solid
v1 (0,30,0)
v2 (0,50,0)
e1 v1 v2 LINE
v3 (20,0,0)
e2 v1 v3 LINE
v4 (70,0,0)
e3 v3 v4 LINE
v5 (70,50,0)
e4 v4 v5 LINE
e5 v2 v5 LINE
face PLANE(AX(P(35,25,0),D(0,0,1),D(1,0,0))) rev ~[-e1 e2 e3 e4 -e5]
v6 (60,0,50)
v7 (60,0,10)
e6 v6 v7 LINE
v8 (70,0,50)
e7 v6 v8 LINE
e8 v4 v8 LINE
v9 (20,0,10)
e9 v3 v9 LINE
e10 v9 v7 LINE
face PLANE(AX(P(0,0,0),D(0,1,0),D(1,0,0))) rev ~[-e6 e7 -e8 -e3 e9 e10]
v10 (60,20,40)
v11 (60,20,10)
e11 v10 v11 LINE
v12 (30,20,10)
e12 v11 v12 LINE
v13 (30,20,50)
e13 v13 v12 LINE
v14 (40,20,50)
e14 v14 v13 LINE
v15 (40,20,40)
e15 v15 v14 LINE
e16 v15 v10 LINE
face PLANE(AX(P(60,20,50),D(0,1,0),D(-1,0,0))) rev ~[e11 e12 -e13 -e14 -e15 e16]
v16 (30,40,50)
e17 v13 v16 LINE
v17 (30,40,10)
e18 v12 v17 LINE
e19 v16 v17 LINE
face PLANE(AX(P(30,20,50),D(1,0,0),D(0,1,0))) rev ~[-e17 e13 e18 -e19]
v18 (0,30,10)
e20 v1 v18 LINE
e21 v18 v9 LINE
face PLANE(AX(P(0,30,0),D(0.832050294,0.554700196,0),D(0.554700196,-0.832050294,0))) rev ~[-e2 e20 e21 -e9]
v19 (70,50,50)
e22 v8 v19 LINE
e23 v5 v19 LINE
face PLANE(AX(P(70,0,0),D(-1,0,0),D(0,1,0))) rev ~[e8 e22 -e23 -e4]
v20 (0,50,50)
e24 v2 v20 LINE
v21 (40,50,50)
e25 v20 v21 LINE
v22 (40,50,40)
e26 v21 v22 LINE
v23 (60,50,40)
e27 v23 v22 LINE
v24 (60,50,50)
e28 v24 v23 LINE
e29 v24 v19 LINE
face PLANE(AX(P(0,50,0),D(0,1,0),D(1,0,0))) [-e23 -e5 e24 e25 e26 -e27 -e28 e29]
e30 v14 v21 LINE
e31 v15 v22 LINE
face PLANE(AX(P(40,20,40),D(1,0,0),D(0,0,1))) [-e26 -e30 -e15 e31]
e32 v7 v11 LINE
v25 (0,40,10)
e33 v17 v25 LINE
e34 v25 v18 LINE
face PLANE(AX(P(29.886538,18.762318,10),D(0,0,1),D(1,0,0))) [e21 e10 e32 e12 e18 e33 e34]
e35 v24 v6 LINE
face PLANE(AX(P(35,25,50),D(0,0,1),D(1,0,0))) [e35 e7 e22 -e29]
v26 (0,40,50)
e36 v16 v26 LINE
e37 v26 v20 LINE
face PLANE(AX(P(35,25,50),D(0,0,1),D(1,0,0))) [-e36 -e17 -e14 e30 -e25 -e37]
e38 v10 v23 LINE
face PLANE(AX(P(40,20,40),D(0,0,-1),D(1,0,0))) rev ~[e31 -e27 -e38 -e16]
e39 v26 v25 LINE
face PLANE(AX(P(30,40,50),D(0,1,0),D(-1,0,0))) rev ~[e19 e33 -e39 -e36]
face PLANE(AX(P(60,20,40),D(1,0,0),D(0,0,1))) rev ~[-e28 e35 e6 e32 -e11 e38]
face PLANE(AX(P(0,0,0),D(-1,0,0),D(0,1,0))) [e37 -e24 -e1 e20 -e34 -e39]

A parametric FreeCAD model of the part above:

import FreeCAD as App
import Part
import Sketcher

V = App.Vector
Q = App.Units.Quantity

doc = App.newDocument("Part")
body = doc.addObject("PartDesign::Body", "Body")

sketch1 = body.newObject("Sketcher::SketchObject", "Sketch")
sketch1.AttachmentSupport = (doc.getObject("XY_Plane"), [""])
sketch1.MapMode = "FlatFace"
sketch1.addGeometry([
    Part.LineSegment(V(0, 50, 0), V(0, 0, 0)),
    Part.LineSegment(V(0, 0, 0), V(70, 0, 0)),
    Part.LineSegment(V(70, 0, 0), V(70, 50, 0)),
    Part.LineSegment(V(70, 50, 0), V(0, 50, 0)),
], False)
sketch1.addConstraint([
    Sketcher.Constraint("Coincident", 0, 2, 1, 1),
    Sketcher.Constraint("Coincident", 1, 2, 2, 1),
    Sketcher.Constraint("Coincident", 2, 2, 3, 1),
    Sketcher.Constraint("Coincident", 3, 2, 0, 1),
    Sketcher.Constraint("Vertical", 0),
    Sketcher.Constraint("Horizontal", 1),
    Sketcher.Constraint("Vertical", 2),
    Sketcher.Constraint("Horizontal", 3),
    Sketcher.Constraint("Coincident", 0, 2, -1, 1),
    Sketcher.Constraint("DistanceX", 1, 1, 1, 2, Q("70 mm")),
    Sketcher.Constraint("DistanceY", 0, 2, 0, 1, Q("50 mm")),
])
pad1 = body.newObject("PartDesign::Pad", "Pad")
pad1.Profile = sketch1
pad1.Length = 50

sketch2 = body.newObject("Sketcher::SketchObject", "Sketch001")
sketch2.AttachmentSupport = (doc.getObject("XY_Plane"), [""])
sketch2.MapMode = "FlatFace"
sketch2.addGeometry([
    Part.LineSegment(V(20, 0, 0), V(0, 30, 0)),
    Part.LineSegment(V(0, 30, 0), V(0, 0, 0)),
    Part.LineSegment(V(0, 0, 0), V(20, 0, 0)),
], False)
sketch2.addConstraint([
    Sketcher.Constraint("Coincident", 0, 2, 1, 1),
    Sketcher.Constraint("Coincident", 1, 2, 2, 1),
    Sketcher.Constraint("Coincident", 2, 2, 0, 1),
    Sketcher.Constraint("Vertical", 1),
    Sketcher.Constraint("Horizontal", 2),
    Sketcher.Constraint("Coincident", 1, 2, -1, 1),
    Sketcher.Constraint("DistanceX", 2, 1, 2, 2, Q("20 mm")),
    Sketcher.Constraint("DistanceY", 1, 2, 1, 1, Q("30 mm")),
])
pocket1 = body.newObject("PartDesign::Pocket", "Pocket")
pocket1.Profile = sketch2
pocket1.Length = 50
pocket1.Reversed = True

sketch3 = body.newObject("Sketcher::SketchObject", "Sketch002")
sketch3.AttachmentSupport = (doc.getObject("XY_Plane"), [""])
sketch3.MapMode = "FlatFace"
sketch3.AttachmentOffset = App.Placement(V(0, 0, 50), App.Rotation())
sketch3.addGeometry([
    Part.LineSegment(V(60, 0, 0), V(60, 20, 0)),
    Part.LineSegment(V(60, 20, 0), V(30, 20, 0)),
    Part.LineSegment(V(30, 20, 0), V(30, 40, 0)),
    Part.LineSegment(V(30, 40, 0), V(0, 40, 0)),
    Part.LineSegment(V(0, 40, 0), V(0, 30, 0)),
    Part.LineSegment(V(0, 30, 0), V(20, 0, 0)),
    Part.LineSegment(V(20, 0, 0), V(60, 0, 0)),
], False)
sketch3.addConstraint([
    Sketcher.Constraint("Coincident", 0, 2, 1, 1),
    Sketcher.Constraint("Coincident", 1, 2, 2, 1),
    Sketcher.Constraint("Coincident", 2, 2, 3, 1),
    Sketcher.Constraint("Coincident", 3, 2, 4, 1),
    Sketcher.Constraint("Coincident", 4, 2, 5, 1),
    Sketcher.Constraint("Coincident", 5, 2, 6, 1),
    Sketcher.Constraint("Coincident", 6, 2, 0, 1),
    Sketcher.Constraint("Vertical", 0),
    Sketcher.Constraint("Horizontal", 1),
    Sketcher.Constraint("Vertical", 2),
    Sketcher.Constraint("Horizontal", 3),
    Sketcher.Constraint("Vertical", 4),
    Sketcher.Constraint("Horizontal", 6),
    Sketcher.Constraint("PointOnObject", 3, 2, -2),
    Sketcher.Constraint("PointOnObject", 5, 2, -1),
    Sketcher.Constraint("Equal", 1, 3),
    Sketcher.Constraint("Equal", 0, 2),
    Sketcher.Constraint("DistanceX", 1, 2, 1, 1, Q("30 mm")),
    Sketcher.Constraint("DistanceX", 6, 1, 6, 2, Q("40 mm")),
    Sketcher.Constraint("DistanceY", 0, 1, 0, 2, Q("20 mm")),
    Sketcher.Constraint("DistanceY", 4, 2, 4, 1, Q("10 mm")),
])
pocket2 = body.newObject("PartDesign::Pocket", "Pocket001")
pocket2.Profile = sketch3
pocket2.Length = 40

sketch4 = body.newObject("Sketcher::SketchObject", "Sketch003")
sketch4.AttachmentSupport = (doc.getObject("XZ_Plane"), [""])
sketch4.MapMode = "FlatFace"
sketch4.AttachmentOffset = App.Placement(V(0, 0, -20), App.Rotation())
sketch4.addGeometry([
    Part.LineSegment(V(40, 50, 0), V(40, 40, 0)),
    Part.LineSegment(V(40, 40, 0), V(60, 40, 0)),
    Part.LineSegment(V(60, 40, 0), V(60, 50, 0)),
    Part.LineSegment(V(60, 50, 0), V(40, 50, 0)),
], False)
sketch4.addConstraint([
    Sketcher.Constraint("Coincident", 0, 2, 1, 1),
    Sketcher.Constraint("Coincident", 1, 2, 2, 1),
    Sketcher.Constraint("Coincident", 2, 2, 3, 1),
    Sketcher.Constraint("Coincident", 3, 2, 0, 1),
    Sketcher.Constraint("Vertical", 0),
    Sketcher.Constraint("Horizontal", 1),
    Sketcher.Constraint("Vertical", 2),
    Sketcher.Constraint("Horizontal", 3),
    Sketcher.Constraint("DistanceX", 1, 1, 1, 2, Q("20 mm")),
    Sketcher.Constraint("DistanceY", 0, 2, 0, 1, Q("10 mm")),
    Sketcher.Constraint("DistanceX", -1, 1, 0, 2, Q("40 mm")),
    Sketcher.Constraint("DistanceY", -1, 1, 0, 2, Q("40 mm")),
])
pocket3 = body.newObject("PartDesign::Pocket", "Pocket002")
pocket3.Profile = sketch4
pocket3.Length = 40

doc.recompute()
